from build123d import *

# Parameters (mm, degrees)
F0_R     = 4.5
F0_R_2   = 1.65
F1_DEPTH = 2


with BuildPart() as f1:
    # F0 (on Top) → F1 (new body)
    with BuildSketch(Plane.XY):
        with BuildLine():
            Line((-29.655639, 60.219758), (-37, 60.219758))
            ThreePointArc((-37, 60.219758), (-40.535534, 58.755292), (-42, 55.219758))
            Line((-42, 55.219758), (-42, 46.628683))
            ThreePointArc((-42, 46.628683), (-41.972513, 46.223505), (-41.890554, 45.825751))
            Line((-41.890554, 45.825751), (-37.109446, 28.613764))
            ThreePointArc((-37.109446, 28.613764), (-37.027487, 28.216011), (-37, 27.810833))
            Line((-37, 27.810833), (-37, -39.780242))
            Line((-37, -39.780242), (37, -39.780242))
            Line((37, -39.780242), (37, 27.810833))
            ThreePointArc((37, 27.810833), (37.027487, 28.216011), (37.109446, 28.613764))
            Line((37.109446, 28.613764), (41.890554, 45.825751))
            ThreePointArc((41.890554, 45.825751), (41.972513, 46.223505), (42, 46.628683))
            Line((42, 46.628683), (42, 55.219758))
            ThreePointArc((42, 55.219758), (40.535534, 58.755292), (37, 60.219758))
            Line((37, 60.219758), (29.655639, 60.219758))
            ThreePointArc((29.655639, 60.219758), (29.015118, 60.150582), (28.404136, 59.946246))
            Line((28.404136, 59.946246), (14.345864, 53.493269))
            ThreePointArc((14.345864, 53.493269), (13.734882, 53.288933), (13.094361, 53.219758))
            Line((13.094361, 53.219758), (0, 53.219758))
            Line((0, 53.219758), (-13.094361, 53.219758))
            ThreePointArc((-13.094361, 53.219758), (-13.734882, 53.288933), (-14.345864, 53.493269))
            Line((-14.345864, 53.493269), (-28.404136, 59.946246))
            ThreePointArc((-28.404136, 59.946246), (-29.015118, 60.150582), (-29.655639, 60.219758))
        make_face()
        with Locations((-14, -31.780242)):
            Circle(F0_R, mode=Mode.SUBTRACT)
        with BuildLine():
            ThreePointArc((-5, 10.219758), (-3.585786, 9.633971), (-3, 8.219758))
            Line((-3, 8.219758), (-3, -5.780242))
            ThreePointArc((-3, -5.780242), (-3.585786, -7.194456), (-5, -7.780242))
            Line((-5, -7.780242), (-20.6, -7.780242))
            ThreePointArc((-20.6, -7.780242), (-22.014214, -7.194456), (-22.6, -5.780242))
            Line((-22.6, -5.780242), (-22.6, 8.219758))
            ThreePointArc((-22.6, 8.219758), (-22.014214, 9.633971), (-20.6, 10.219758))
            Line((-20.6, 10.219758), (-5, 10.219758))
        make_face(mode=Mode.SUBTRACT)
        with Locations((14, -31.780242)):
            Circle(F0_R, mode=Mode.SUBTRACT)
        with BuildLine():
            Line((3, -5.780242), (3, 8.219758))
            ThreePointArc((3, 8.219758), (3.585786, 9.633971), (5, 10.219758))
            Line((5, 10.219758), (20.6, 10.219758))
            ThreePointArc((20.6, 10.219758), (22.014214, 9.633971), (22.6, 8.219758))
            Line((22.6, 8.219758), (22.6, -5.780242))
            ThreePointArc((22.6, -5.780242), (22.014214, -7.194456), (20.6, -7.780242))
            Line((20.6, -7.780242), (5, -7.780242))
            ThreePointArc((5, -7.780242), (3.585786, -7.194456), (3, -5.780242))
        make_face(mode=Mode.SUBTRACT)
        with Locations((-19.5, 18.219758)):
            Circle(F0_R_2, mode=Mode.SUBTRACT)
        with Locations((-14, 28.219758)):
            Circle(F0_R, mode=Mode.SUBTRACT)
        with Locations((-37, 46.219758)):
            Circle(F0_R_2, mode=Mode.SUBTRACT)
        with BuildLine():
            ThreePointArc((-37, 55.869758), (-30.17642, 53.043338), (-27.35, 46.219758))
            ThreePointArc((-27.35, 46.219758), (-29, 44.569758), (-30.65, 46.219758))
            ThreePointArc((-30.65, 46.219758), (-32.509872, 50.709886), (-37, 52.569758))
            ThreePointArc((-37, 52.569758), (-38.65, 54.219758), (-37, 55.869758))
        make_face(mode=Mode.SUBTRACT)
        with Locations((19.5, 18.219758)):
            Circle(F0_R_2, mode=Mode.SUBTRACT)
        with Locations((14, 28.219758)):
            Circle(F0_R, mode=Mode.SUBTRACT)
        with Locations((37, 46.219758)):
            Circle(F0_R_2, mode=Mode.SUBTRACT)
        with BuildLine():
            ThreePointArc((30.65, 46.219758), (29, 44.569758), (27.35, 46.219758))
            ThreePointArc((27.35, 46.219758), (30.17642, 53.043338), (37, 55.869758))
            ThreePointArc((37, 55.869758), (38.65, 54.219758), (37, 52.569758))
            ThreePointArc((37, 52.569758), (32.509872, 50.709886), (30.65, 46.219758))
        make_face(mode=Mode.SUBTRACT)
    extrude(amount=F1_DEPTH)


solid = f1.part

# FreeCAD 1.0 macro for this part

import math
import FreeCAD as App
import Part
import Sketcher
from FreeCAD import Vector
Q = App.Units.Quantity

doc = App.newDocument("Part")
body = doc.addObject("PartDesign::Body", "Body")

# Sketch on XY plane
sketch1 = doc.addObject("Sketcher::SketchObject", "Sketch")
body.addObject(sketch1)
sketch1.AttachmentSupport = (doc.XY_Plane, [""])
sketch1.MapMode = "FlatFace"
sketch1.addGeometry([
    Part.LineSegment(Vector(-29.7, 60.2, 0), Vector(-37, 60.2, 0)),  # 0
    Part.ArcOfCircle(Part.Circle(Vector(-37, 55.2, 0), Vector(0, 0, 1), 5), math.radians(90), math.radians(180)),  # 1
    Part.LineSegment(Vector(-42, 55.2, 0), Vector(-42, 46.6, 0)),  # 2
    Part.ArcOfCircle(Part.Circle(Vector(-39, 46.6, 0), Vector(0, 0, 1), 3), math.radians(180), math.radians(195.52)),  # 3
    Part.LineSegment(Vector(-41.9, 45.8, 0), Vector(-37.1, 28.6, 0)),  # 4
    Part.ArcOfCircle(Part.Circle(Vector(-40, 27.8, 0), Vector(0, 0, 1), 3), math.radians(0), math.radians(15.52)),  # 5
    Part.LineSegment(Vector(-37, 27.8, 0), Vector(-37, -39.8, 0)),  # 6
    Part.LineSegment(Vector(-37, -39.8, 0), Vector(37, -39.8, 0)),  # 7
    Part.LineSegment(Vector(37, -39.8, 0), Vector(37, 27.8, 0)),  # 8
    Part.ArcOfCircle(Part.Circle(Vector(40, 27.8, 0), Vector(0, 0, 1), 3), math.radians(164.48), math.radians(180)),  # 9
    Part.LineSegment(Vector(37.1, 28.6, 0), Vector(41.9, 45.8, 0)),  # 10
    Part.ArcOfCircle(Part.Circle(Vector(39, 46.6, 0), Vector(0, 0, 1), 3), math.radians(-15.52), math.radians(0)),  # 11
    Part.LineSegment(Vector(42, 46.6, 0), Vector(42, 55.2, 0)),  # 12
    Part.ArcOfCircle(Part.Circle(Vector(37, 55.2, 0), Vector(0, 0, 1), 5), math.radians(0), math.radians(90)),  # 13
    Part.LineSegment(Vector(37, 60.2, 0), Vector(29.7, 60.2, 0)),  # 14
    Part.ArcOfCircle(Part.Circle(Vector(29.7, 57.2, 0), Vector(0, 0, 1), 3), math.radians(90), math.radians(115)),  # 15
    Part.LineSegment(Vector(28.4, 59.9, 0), Vector(14.3, 53.5, 0)),  # 16
    Part.ArcOfCircle(Part.Circle(Vector(13.1, 56.2, 0), Vector(0, 0, 1), 3), math.radians(-90), math.radians(-65)),  # 17
    Part.LineSegment(Vector(13.1, 53.2, 0), Vector(-13.1, 53.2, 0)),  # 18
    Part.ArcOfCircle(Part.Circle(Vector(-13.1, 56.2, 0), Vector(0, 0, 1), 3), math.radians(-115), math.radians(-90)),  # 19
    Part.LineSegment(Vector(-14.3, 53.5, 0), Vector(-28.4, 59.9, 0)),  # 20
    Part.ArcOfCircle(Part.Circle(Vector(-29.7, 57.2, 0), Vector(0, 0, 1), 3), math.radians(65), math.radians(90)),  # 21
    Part.Circle(Vector(-14, -31.8, 0), Vector(0, 0, 1), 4.5),  # 22
    Part.LineSegment(Vector(-20.6, 10.2, 0), Vector(-5, 10.2, 0)),  # 23
    Part.ArcOfCircle(Part.Circle(Vector(-5, 8.2, 0), Vector(0, 0, 1), 2), math.radians(0), math.radians(90)),  # 24
    Part.LineSegment(Vector(-3, 8.2, 0), Vector(-3, -5.8, 0)),  # 25
    Part.ArcOfCircle(Part.Circle(Vector(-5, -5.8, 0), Vector(0, 0, 1), 2), math.radians(-90), math.radians(0)),  # 26
    Part.LineSegment(Vector(-5, -7.8, 0), Vector(-20.6, -7.8, 0)),  # 27
    Part.ArcOfCircle(Part.Circle(Vector(-20.6, -5.8, 0), Vector(0, 0, 1), 2), math.radians(180), math.radians(270)),  # 28
    Part.LineSegment(Vector(-22.6, -5.8, 0), Vector(-22.6, 8.2, 0)),  # 29
    Part.ArcOfCircle(Part.Circle(Vector(-20.6, 8.2, 0), Vector(0, 0, 1), 2), math.radians(90), math.radians(180)),  # 30
    Part.Circle(Vector(14, -31.8, 0), Vector(0, 0, 1), 4.5),  # 31
    Part.ArcOfCircle(Part.Circle(Vector(5, -5.8, 0), Vector(0, 0, 1), 2), math.radians(180), math.radians(270)),  # 32
    Part.LineSegment(Vector(3, -5.8, 0), Vector(3, 8.2, 0)),  # 33
    Part.ArcOfCircle(Part.Circle(Vector(5, 8.2, 0), Vector(0, 0, 1), 2), math.radians(90), math.radians(180)),  # 34
    Part.LineSegment(Vector(5, 10.2, 0), Vector(20.6, 10.2, 0)),  # 35
    Part.ArcOfCircle(Part.Circle(Vector(20.6, 8.2, 0), Vector(0, 0, 1), 2), math.radians(0), math.radians(90)),  # 36
    Part.LineSegment(Vector(22.6, 8.2, 0), Vector(22.6, -5.8, 0)),  # 37
    Part.ArcOfCircle(Part.Circle(Vector(20.6, -5.8, 0), Vector(0, 0, 1), 2), math.radians(-90), math.radians(0)),  # 38
    Part.LineSegment(Vector(20.6, -7.8, 0), Vector(5, -7.8, 0)),  # 39
    Part.Circle(Vector(-19.5, 18.2, 0), Vector(0, 0, 1), 1.6),  # 40
    Part.Circle(Vector(-14, 28.2, 0), Vector(0, 0, 1), 4.5),  # 41
    Part.Circle(Vector(-37, 46.2, 0), Vector(0, 0, 1), 1.6),  # 42
    Part.ArcOfCircle(Part.Circle(Vector(-37, 54.2, 0), Vector(0, 0, 1), 1.6), math.radians(90), math.radians(270)),  # 43
    Part.ArcOfCircle(Part.Circle(Vector(-37, 46.2, 0), Vector(0, 0, 1), 9.7), math.radians(0), math.radians(90)),  # 44
    Part.ArcOfCircle(Part.Circle(Vector(-29, 46.2, 0), Vector(0, 0, 1), 1.6), math.radians(180), math.radians(360)),  # 45
    Part.ArcOfCircle(Part.Circle(Vector(-37, 46.2, 0), Vector(0, 0, 1), 6.4), math.radians(0), math.radians(90)),  # 46
    Part.Circle(Vector(14, 28.2, 0), Vector(0, 0, 1), 4.5),  # 47
    Part.Circle(Vector(19.5, 18.2, 0), Vector(0, 0, 1), 1.6),  # 48
    Part.Circle(Vector(37, 46.2, 0), Vector(0, 0, 1), 1.6),  # 49
    Part.ArcOfCircle(Part.Circle(Vector(37, 46.2, 0), Vector(0, 0, 1), 6.4), math.radians(90), math.radians(180)),  # 50
    Part.ArcOfCircle(Part.Circle(Vector(29, 46.2, 0), Vector(0, 0, 1), 1.6), math.radians(180), math.radians(360)),  # 51
    Part.ArcOfCircle(Part.Circle(Vector(37, 46.2, 0), Vector(0, 0, 1), 9.7), math.radians(90), math.radians(180)),  # 52
    Part.ArcOfCircle(Part.Circle(Vector(37, 54.2, 0), Vector(0, 0, 1), 1.6), math.radians(-90), math.radians(90)),  # 53
], False)
sketch1.addConstraint([
    Sketcher.Constraint("Tangent", 0, 2, 1, 1),
    Sketcher.Constraint("Tangent", 1, 2, 2, 1),
    Sketcher.Constraint("Tangent", 2, 2, 3, 1),
    Sketcher.Constraint("Tangent", 3, 2, 4, 1),
    Sketcher.Constraint("Tangent", 4, 2, 5, 2),
    Sketcher.Constraint("Coincident", 5, 1, 6, 1),
    Sketcher.Constraint("Coincident", 6, 2, 7, 1),
    Sketcher.Constraint("Coincident", 7, 2, 8, 1),
    Sketcher.Constraint("Coincident", 8, 2, 9, 2),
    Sketcher.Constraint("Tangent", 9, 1, 10, 1),
    Sketcher.Constraint("Tangent", 10, 2, 11, 1),
    Sketcher.Constraint("Tangent", 11, 2, 12, 1),
    Sketcher.Constraint("Tangent", 12, 2, 13, 1),
    Sketcher.Constraint("Tangent", 13, 2, 14, 1),
    Sketcher.Constraint("Tangent", 14, 2, 15, 1),
    Sketcher.Constraint("Tangent", 15, 2, 16, 1),
    Sketcher.Constraint("Tangent", 16, 2, 17, 2),
    Sketcher.Constraint("Tangent", 17, 1, 18, 1),
    Sketcher.Constraint("Tangent", 18, 2, 19, 2),
    Sketcher.Constraint("Tangent", 19, 1, 20, 1),
    Sketcher.Constraint("Tangent", 20, 2, 21, 1),
    Sketcher.Constraint("Tangent", 21, 2, 0, 1),
    Sketcher.Constraint("Tangent", 23, 2, 24, 2),
    Sketcher.Constraint("Tangent", 24, 1, 25, 1),
    Sketcher.Constraint("Tangent", 25, 2, 26, 2),
    Sketcher.Constraint("Tangent", 26, 1, 27, 1),
    Sketcher.Constraint("Tangent", 27, 2, 28, 2),
    Sketcher.Constraint("Tangent", 28, 1, 29, 1),
    Sketcher.Constraint("Tangent", 29, 2, 30, 2),
    Sketcher.Constraint("Tangent", 30, 1, 23, 1),
    Sketcher.Constraint("Tangent", 32, 1, 33, 1),
    Sketcher.Constraint("Tangent", 33, 2, 34, 2),
    Sketcher.Constraint("Tangent", 34, 1, 35, 1),
    Sketcher.Constraint("Tangent", 35, 2, 36, 2),
    Sketcher.Constraint("Tangent", 36, 1, 37, 1),
    Sketcher.Constraint("Tangent", 37, 2, 38, 2),
    Sketcher.Constraint("Tangent", 38, 1, 39, 1),
    Sketcher.Constraint("Tangent", 39, 2, 32, 2),
    Sketcher.Constraint("Tangent", 43, 1, 44, 2),
    Sketcher.Constraint("Tangent", 44, 1, 45, 2),
    Sketcher.Constraint("Tangent", 45, 1, 46, 1),
    Sketcher.Constraint("Tangent", 46, 2, 43, 2),
    Sketcher.Constraint("Tangent", 50, 2, 51, 2),
    Sketcher.Constraint("Tangent", 51, 1, 52, 2),
    Sketcher.Constraint("Tangent", 52, 1, 53, 2),
    Sketcher.Constraint("Tangent", 53, 1, 50, 1),
    Sketcher.Constraint("Horizontal", 0),
    Sketcher.Constraint("Vertical", 2),
    Sketcher.Constraint("Vertical", 6),
    Sketcher.Constraint("Horizontal", 7),
    Sketcher.Constraint("Vertical", 8),
    Sketcher.Constraint("Vertical", 12),
    Sketcher.Constraint("Horizontal", 14),
    Sketcher.Constraint("Horizontal", 18),
    Sketcher.Constraint("Horizontal", 23),
    Sketcher.Constraint("Vertical", 25),
    Sketcher.Constraint("Horizontal", 27),
    Sketcher.Constraint("Vertical", 29),
    Sketcher.Constraint("Vertical", 33),
    Sketcher.Constraint("Horizontal", 35),
    Sketcher.Constraint("Vertical", 37),
    Sketcher.Constraint("Horizontal", 39),
    Sketcher.Constraint("Coincident", 44, 3, 42, 3),
    Sketcher.Constraint("Coincident", 46, 3, 42, 3),
    Sketcher.Constraint("Coincident", 50, 3, 49, 3),
    Sketcher.Constraint("Coincident", 52, 3, 49, 3),
    Sketcher.Constraint("Equal", 5, 9),
    Sketcher.Constraint("Equal", 3, 11),
    Sketcher.Constraint("Equal", 1, 13),
    Sketcher.Constraint("Equal", 17, 19),
    Sketcher.Constraint("Equal", 15, 21),
    Sketcher.Constraint("Equal", 24, 26),
    Sketcher.Constraint("Equal", 26, 28),
    Sketcher.Constraint("Equal", 28, 30),
    Sketcher.Constraint("Equal", 22, 31),
    Sketcher.Constraint("Equal", 30, 32),
    Sketcher.Constraint("Equal", 32, 34),
    Sketcher.Constraint("Equal", 34, 36),
    Sketcher.Constraint("Equal", 36, 38),
    Sketcher.Constraint("Equal", 31, 41),
    Sketcher.Constraint("Equal", 40, 42),
    Sketcher.Constraint("Equal", 42, 43),
    Sketcher.Constraint("Equal", 41, 47),
    Sketcher.Constraint("Equal", 45, 48),
    Sketcher.Constraint("Equal", 48, 49),
    Sketcher.Constraint("Equal", 46, 50),
    Sketcher.Constraint("Equal", 49, 51),
    Sketcher.Constraint("Symmetric", 5, 3, 9, 3, -2),
    Sketcher.Constraint("Symmetric", 3, 3, 11, 3, -2),
    Sketcher.Constraint("Symmetric", 15, 3, 21, 3, -2),
    Sketcher.Constraint("Symmetric", 22, 3, 31, 3, -2),
    Sketcher.Constraint("Symmetric", 26, 3, 32, 3, -2),
    Sketcher.Constraint("Symmetric", 30, 3, 36, 3, -2),
    Sketcher.Constraint("Symmetric", 41, 3, 47, 3, -2),
    Sketcher.Constraint("Symmetric", 40, 3, 48, 3, -2),
    Sketcher.Constraint("Symmetric", 42, 3, 49, 3, -2),
    Sketcher.Constraint("Horizontal", 44, 3, 45, 3),
    Sketcher.Constraint("Horizontal", 50, 3, 51, 3),
    Sketcher.Constraint("Horizontal", 5, 1, 8, 2),
    Sketcher.Constraint("Horizontal", 16, 2, 19, 1),
    Sketcher.Constraint("Vertical", 22, 3, 41, 3),
    Sketcher.Constraint("Vertical", 1, 3, 42, 3),
    Sketcher.Constraint("Vertical", 42, 3, 43, 3),
    Sketcher.Constraint("Vertical", 52, 3, 53, 3),
    Sketcher.Constraint("Vertical", 0, 2, 5, 1),
    Sketcher.Constraint("Diameter", 22, Q("9 mm")),
    Sketcher.Constraint("Radius", 1, Q("5 mm")),
    Sketcher.Constraint("Radius", 24, Q("2 mm")),
    Sketcher.Constraint("Diameter", 40, Q("3.3 mm")),
    Sketcher.Constraint("DistanceX", 7, 1, 7, 2, Q("74 mm")),
    Sketcher.Constraint("DistanceY", 25, 2, 25, 1, Q("14 mm")),
    Sketcher.Constraint("Radius", 44, Q("9.650001 mm")),
    Sketcher.Constraint("DistanceX", 23, 1, 23, 2, Q("15.6 mm")),
    Sketcher.Constraint("DistanceX", 22, 3, -1, 1, Q("14 mm")),
    Sketcher.Constraint("DistanceX", 24, 3, -1, 1, Q("5 mm")),
    Sketcher.Constraint("DistanceX", 40, 3, -1, 1, Q("19.5 mm")),
    Sketcher.Constraint("Radius", 3, Q("2.999971 mm")),
    Sketcher.Constraint("Radius", 17, Q("2.999991 mm")),
    Sketcher.Constraint("Radius", 5, Q("2.999956 mm")),
    Sketcher.Constraint("Radius", 15, Q("3.000013 mm")),
    Sketcher.Constraint("DistanceX", 0, 2, 0, 1, Q("7.344361 mm")),
    Sketcher.Constraint("DistanceX", 18, 2, 18, 1, Q("26.188722 mm")),
    Sketcher.Constraint("Distance", 4, Q("17.863692 mm")),
    Sketcher.Constraint("DistanceY", 2, 2, 2, 1, Q("8.591075 mm")),
    Sketcher.Constraint("DistanceY", 6, 2, 6, 1, Q("67.591075 mm")),
    Sketcher.Constraint("DistanceY", -1, 1, 1, 3, Q("55.219758 mm")),
    Sketcher.Constraint("DistanceY", -1, 1, 17, 3, Q("56.219749 mm")),
    Sketcher.Constraint("DistanceY", 26, 1, -1, 1, Q("7.780242 mm")),
    Sketcher.Constraint("DistanceY", 22, 3, -1, 1, Q("31.780242 mm")),
    Sketcher.Constraint("DistanceY", -1, 1, 40, 3, Q("18.219758 mm")),
    Sketcher.Constraint("DistanceY", -1, 1, 41, 3, Q("28.219758 mm")),
    Sketcher.Constraint("DistanceY", -1, 1, 42, 3, Q("46.219758 mm")),
    Sketcher.Constraint("DistanceY", -1, 1, 5, 1, Q("27.810833 mm")),
])
pad1 = doc.addObject("PartDesign::Pad", "Pad")
body.addObject(pad1)
pad1.Profile = sketch1
pad1.Length = 2

doc.recompute()
